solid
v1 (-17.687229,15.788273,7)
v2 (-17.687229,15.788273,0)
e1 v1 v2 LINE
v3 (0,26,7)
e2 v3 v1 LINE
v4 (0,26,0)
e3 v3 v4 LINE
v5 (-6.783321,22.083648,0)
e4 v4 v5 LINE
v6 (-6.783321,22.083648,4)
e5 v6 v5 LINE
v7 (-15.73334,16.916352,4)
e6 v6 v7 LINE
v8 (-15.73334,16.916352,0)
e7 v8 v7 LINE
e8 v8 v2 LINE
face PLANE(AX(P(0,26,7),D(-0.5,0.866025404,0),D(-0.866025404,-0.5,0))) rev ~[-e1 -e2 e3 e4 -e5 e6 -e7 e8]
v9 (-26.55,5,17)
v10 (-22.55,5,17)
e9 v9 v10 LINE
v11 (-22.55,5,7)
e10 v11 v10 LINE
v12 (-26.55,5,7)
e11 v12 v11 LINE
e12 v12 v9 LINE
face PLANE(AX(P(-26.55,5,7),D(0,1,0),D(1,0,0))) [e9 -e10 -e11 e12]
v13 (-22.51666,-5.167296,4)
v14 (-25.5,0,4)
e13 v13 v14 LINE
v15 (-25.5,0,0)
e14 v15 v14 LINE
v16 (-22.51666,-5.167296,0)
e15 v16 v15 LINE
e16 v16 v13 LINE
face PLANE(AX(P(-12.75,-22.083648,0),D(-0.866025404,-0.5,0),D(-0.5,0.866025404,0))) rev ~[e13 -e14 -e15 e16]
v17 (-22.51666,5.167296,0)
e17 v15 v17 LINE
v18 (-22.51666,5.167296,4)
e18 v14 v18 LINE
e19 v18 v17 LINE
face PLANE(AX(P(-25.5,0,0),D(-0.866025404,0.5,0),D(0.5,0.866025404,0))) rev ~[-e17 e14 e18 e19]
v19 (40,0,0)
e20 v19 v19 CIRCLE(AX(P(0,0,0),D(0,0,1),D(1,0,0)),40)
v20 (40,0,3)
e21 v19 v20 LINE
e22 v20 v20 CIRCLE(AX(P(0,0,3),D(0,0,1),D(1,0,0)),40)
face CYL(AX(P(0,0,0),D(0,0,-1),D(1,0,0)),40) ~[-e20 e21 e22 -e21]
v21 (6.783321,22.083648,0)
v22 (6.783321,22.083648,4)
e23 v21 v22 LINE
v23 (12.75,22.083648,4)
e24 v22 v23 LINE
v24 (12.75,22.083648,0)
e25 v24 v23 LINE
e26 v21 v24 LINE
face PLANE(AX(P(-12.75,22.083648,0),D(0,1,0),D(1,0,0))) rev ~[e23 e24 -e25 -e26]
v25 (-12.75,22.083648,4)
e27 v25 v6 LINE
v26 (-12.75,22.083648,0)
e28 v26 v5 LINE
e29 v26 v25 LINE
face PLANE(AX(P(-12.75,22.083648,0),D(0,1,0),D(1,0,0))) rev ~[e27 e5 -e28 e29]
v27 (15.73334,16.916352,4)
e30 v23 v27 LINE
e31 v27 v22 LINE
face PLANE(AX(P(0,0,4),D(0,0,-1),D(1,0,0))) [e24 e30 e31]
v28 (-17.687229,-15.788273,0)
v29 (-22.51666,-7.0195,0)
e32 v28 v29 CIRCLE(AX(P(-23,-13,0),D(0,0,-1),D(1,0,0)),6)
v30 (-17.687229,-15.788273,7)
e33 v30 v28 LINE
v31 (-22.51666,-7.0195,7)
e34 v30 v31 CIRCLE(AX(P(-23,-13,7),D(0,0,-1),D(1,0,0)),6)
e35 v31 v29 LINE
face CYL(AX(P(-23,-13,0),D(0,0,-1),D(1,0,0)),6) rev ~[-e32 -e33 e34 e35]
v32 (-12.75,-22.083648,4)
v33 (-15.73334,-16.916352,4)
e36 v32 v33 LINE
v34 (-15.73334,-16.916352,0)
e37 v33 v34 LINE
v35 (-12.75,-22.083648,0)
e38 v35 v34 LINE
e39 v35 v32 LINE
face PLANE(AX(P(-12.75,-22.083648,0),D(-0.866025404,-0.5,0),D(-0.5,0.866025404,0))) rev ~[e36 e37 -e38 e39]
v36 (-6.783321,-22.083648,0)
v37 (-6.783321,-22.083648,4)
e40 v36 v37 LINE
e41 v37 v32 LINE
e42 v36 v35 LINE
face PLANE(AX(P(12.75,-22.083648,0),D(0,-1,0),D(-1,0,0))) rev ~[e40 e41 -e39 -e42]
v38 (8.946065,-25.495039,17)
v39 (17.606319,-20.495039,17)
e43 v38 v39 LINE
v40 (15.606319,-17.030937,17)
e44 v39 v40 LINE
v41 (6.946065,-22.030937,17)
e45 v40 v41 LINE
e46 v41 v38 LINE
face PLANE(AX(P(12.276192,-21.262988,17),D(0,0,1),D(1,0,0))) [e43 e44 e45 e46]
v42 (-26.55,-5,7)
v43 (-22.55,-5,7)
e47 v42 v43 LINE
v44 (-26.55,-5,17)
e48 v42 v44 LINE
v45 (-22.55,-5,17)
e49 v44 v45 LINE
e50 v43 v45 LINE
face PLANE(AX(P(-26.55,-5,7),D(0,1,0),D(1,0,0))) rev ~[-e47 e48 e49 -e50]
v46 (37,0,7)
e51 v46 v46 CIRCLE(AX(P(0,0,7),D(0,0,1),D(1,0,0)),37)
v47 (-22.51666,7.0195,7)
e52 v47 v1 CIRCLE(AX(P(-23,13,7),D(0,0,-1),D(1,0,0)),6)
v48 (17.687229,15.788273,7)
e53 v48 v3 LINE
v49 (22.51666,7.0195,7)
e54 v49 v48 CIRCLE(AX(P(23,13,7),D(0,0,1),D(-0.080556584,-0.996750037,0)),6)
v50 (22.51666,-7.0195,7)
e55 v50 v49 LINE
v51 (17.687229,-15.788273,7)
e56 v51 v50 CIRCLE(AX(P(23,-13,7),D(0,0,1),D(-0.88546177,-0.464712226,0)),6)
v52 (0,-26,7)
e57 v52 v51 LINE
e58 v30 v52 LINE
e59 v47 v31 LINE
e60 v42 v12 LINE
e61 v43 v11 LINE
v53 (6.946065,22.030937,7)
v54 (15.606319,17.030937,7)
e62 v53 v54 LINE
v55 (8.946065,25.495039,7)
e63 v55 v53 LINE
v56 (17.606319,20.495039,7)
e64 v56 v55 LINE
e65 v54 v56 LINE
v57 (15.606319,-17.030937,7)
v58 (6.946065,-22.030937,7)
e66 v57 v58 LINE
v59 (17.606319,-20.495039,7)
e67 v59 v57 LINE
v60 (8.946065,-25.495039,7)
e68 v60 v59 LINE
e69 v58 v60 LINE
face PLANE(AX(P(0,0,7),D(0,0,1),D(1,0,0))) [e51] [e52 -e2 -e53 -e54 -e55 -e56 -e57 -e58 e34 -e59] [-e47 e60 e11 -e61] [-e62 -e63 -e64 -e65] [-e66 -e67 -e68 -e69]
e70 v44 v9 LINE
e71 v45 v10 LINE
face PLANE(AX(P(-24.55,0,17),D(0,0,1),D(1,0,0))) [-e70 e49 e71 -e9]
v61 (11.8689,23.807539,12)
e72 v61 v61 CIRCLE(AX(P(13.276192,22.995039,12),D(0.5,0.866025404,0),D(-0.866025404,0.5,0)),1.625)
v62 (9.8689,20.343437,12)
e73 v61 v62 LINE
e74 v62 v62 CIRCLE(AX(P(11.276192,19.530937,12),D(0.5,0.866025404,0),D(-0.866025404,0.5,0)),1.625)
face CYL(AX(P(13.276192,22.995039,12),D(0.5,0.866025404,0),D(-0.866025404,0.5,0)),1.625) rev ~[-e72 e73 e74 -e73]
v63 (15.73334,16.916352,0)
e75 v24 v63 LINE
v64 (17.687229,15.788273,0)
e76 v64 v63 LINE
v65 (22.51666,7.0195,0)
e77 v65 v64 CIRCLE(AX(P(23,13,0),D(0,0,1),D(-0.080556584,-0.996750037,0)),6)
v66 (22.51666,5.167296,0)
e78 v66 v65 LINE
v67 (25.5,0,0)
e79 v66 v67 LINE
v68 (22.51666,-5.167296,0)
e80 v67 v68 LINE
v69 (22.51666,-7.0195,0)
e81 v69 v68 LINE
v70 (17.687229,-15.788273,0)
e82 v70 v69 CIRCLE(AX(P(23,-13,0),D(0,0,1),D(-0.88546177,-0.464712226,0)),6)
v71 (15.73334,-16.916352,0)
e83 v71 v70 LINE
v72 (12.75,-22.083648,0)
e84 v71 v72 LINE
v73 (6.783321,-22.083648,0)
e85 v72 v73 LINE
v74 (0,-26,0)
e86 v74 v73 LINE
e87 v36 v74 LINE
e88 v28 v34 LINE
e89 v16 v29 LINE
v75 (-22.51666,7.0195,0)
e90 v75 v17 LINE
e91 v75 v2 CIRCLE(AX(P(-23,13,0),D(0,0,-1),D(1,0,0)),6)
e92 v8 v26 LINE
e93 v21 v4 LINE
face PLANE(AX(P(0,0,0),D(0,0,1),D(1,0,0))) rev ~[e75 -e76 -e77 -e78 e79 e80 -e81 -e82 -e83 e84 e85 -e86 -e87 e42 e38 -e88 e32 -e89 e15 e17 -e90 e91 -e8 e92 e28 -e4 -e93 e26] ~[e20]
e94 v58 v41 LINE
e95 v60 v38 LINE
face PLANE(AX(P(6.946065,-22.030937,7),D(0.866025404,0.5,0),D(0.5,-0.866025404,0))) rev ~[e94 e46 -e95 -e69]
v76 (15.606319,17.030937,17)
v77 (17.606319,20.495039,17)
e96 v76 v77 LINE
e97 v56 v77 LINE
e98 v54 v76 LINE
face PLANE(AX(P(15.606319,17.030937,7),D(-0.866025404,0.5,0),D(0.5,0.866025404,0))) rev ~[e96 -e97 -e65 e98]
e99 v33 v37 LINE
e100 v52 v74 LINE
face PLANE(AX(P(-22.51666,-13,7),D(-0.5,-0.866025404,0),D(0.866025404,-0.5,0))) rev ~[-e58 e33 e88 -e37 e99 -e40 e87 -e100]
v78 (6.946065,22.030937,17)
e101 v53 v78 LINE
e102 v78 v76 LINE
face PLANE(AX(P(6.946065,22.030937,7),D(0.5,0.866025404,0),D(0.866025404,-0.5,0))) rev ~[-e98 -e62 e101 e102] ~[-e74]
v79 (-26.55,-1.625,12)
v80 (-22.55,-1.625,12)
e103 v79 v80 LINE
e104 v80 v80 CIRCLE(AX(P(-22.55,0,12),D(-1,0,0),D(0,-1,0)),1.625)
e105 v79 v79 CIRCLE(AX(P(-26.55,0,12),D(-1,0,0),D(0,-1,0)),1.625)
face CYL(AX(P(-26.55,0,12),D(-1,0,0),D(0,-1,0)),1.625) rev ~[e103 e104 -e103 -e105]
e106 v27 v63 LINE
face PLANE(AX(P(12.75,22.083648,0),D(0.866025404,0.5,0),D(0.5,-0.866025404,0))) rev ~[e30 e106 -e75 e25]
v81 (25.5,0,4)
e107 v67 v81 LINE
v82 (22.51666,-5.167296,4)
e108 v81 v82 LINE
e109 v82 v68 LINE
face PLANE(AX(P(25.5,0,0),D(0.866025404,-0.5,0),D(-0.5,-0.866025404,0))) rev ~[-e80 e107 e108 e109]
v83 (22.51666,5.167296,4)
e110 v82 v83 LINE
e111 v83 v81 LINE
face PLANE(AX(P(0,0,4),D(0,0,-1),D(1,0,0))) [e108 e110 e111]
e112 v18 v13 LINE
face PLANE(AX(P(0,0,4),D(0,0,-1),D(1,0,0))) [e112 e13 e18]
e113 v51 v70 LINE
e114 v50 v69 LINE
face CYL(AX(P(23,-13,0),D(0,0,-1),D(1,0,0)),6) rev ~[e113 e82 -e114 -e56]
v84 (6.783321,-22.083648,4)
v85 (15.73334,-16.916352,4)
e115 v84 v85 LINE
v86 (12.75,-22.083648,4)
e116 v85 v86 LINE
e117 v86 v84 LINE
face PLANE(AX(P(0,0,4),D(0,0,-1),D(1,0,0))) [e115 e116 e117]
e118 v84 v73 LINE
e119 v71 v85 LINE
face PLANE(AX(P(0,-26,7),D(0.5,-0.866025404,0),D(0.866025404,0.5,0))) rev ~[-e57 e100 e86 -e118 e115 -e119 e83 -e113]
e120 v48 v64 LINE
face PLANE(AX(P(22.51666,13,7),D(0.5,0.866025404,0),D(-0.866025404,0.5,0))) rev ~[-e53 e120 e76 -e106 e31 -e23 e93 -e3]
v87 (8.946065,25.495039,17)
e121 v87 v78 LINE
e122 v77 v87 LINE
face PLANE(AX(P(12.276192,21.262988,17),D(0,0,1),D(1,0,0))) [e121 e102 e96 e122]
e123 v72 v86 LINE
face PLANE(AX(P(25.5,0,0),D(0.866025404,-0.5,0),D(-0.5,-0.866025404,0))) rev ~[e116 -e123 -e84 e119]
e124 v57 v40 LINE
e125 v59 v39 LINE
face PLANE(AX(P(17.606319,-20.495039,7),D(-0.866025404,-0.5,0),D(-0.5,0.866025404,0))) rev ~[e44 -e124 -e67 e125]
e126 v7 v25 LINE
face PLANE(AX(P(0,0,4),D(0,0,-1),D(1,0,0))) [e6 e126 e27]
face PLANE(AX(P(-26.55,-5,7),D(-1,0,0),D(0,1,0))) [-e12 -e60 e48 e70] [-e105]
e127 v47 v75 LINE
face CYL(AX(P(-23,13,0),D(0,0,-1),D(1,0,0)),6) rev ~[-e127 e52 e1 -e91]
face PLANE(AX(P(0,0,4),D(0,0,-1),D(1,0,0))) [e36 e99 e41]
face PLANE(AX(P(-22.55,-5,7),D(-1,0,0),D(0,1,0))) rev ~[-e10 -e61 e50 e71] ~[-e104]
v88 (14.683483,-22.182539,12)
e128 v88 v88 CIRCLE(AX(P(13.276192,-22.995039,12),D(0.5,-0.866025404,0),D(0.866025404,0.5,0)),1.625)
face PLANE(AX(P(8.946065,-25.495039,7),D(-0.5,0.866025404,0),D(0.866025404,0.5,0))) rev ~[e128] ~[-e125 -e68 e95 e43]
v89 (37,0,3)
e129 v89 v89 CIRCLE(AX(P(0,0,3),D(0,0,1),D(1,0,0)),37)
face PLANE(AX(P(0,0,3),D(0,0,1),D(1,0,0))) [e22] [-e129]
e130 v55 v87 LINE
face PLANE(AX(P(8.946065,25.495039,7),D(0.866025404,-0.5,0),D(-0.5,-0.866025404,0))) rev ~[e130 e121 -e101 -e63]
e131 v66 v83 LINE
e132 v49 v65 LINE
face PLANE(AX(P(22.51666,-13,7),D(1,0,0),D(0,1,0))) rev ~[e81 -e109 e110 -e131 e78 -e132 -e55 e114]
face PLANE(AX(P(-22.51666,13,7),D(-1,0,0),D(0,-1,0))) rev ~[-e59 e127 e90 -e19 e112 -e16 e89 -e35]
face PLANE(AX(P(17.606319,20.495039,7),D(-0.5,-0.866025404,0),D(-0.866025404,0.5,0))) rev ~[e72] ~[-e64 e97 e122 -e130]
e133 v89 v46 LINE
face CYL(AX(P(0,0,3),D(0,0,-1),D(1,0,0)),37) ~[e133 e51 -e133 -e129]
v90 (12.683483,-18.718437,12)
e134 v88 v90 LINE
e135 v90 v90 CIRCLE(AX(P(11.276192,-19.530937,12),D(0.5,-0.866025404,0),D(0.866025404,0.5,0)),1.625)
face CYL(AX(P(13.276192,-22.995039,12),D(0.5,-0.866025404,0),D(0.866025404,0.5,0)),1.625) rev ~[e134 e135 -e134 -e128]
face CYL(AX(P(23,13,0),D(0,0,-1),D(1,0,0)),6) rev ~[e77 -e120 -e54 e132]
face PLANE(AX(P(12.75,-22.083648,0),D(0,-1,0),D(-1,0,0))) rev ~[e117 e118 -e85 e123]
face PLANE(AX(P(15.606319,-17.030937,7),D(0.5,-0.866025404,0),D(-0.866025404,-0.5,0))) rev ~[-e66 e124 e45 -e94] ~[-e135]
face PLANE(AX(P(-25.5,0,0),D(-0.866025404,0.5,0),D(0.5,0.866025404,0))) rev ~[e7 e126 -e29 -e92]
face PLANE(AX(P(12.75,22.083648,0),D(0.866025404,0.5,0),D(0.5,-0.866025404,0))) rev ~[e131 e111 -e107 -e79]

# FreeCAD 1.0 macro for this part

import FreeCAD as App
import Part
import Sketcher
Q = App.Units.Quantity

doc = App.newDocument("Part")
body = doc.addObject("PartDesign::Body", "Body")

# Sketch on XY plane
sketch1 = body.newObject("Sketcher::SketchObject", "Sketch")
sketch1.AttachmentSupport = (doc.getObject("XY_Plane"), [""])
sketch1.MapMode = "FlatFace"
sketch1.addGeometry(Part.Circle(App.Vector(0, 0, 0), App.Vector(0, 0, 1), 40), False)
sketch1.addConstraint(Sketcher.Constraint("Coincident", 0, 3, -1, 1))
sketch1.addConstraint(Sketcher.Constraint("Diameter", 0, Q("80 mm")))
pad1 = body.newObject("PartDesign::Pad", "Pad")
pad1.Profile = sketch1
pad1.Length = 3

# Sketch on XY plane
sketch2 = body.newObject("Sketcher::SketchObject", "Sketch001")
sketch2.AttachmentSupport = (doc.getObject("XY_Plane"), [""])
sketch2.MapMode = "FlatFace"
sketch2.AttachmentOffset = App.Placement(App.Vector(0, 0, 3), App.Rotation())
sketch2.addGeometry(Part.Circle(App.Vector(0, 0, 0), App.Vector(0, 0, 1), 37), False)
sketch2.addConstraint(Sketcher.Constraint("Coincident", 0, 3, -1, 1))
sketch2.addConstraint(Sketcher.Constraint("Diameter", 0, Q("74 mm")))
pad2 = body.newObject("PartDesign::Pad", "Pad001")
pad2.Profile = sketch2
pad2.Length = 4

# Sketch on XY plane
sketch3 = body.newObject("Sketcher::SketchObject", "Sketch002")
sketch3.AttachmentSupport = (doc.getObject("XY_Plane"), [""])
sketch3.MapMode = "FlatFace"
sketch3.AttachmentOffset = App.Placement(App.Vector(0, 0, 7), App.Rotation())
sketch3.addGeometry(Part.LineSegment(App.Vector(22.51666, 13, 0), App.Vector(0, 26, 0)), False)
sketch3.addGeometry(Part.LineSegment(App.Vector(0, 26, 0), App.Vector(-22.51666, 13, 0)), False)
sketch3.addGeometry(Part.LineSegment(App.Vector(-22.51666, 13, 0), App.Vector(-22.51666, -13, 0)), False)
sketch3.addGeometry(Part.LineSegment(App.Vector(-22.51666, -13, 0), App.Vector(0, -26, 0)), False)
sketch3.addGeometry(Part.LineSegment(App.Vector(0, -26, 0), App.Vector(22.51666, -13, 0)), False)
sketch3.addGeometry(Part.LineSegment(App.Vector(22.51666, -13, 0), App.Vector(22.51666, 13, 0)), False)
sketch3.addConstraint(Sketcher.Constraint("Coincident", 0, 2, 1, 1))
sketch3.addConstraint(Sketcher.Constraint("Coincident", 1, 2, 2, 1))
sketch3.addConstraint(Sketcher.Constraint("Coincident", 2, 2, 3, 1))
sketch3.addConstraint(Sketcher.Constraint("Coincident", 3, 2, 4, 1))
sketch3.addConstraint(Sketcher.Constraint("Coincident", 4, 2, 5, 1))
sketch3.addConstraint(Sketcher.Constraint("Coincident", 5, 2, 0, 1))
sketch3.addConstraint(Sketcher.Constraint("Vertical", 2))
sketch3.addConstraint(Sketcher.Constraint("Vertical", 5))
sketch3.addConstraint(Sketcher.Constraint("Symmetric", 0, 2, 3, 2, -1, 1))
sketch3.addConstraint(Sketcher.Constraint("Symmetric", 1, 2, 4, 2, -1, 1))
sketch3.addConstraint(Sketcher.Constraint("PointOnObject", 0, 2, -2))
sketch3.addConstraint(Sketcher.Constraint("Parallel", 0, 3))
sketch3.addConstraint(Sketcher.Constraint("Horizontal", 2, 2, 4, 2))
sketch3.addConstraint(Sketcher.Constraint("DistanceY", 2, 2, 2, 1, Q("26 mm")))
sketch3.addConstraint(Sketcher.Constraint("Angle", 0, Q("150 deg")))
sketch3.addConstraint(Sketcher.Constraint("Distance", 0, Q("26 mm")))
pocket1 = body.newObject("PartDesign::Pocket", "Pocket")
pocket1.Profile = sketch3
pocket1.Type = "ThroughAll"

# Sketch on XY plane
sketch4 = body.newObject("Sketcher::SketchObject", "Sketch003")
sketch4.AttachmentSupport = (doc.getObject("XY_Plane"), [""])
sketch4.MapMode = "FlatFace"
sketch4.addGeometry(Part.LineSegment(App.Vector(-12.75, -22.083648, 0), App.Vector(-25.5, 0, 0)), False)
sketch4.addGeometry(Part.LineSegment(App.Vector(-25.5, 0, 0), App.Vector(-12.75, 22.083648, 0)), False)
sketch4.addGeometry(Part.LineSegment(App.Vector(-12.75, 22.083648, 0), App.Vector(12.75, 22.083648, 0)), False)
sketch4.addGeometry(Part.LineSegment(App.Vector(12.75, 22.083648, 0), App.Vector(25.5, 0, 0)), False)
sketch4.addGeometry(Part.LineSegment(App.Vector(25.5, 0, 0), App.Vector(12.75, -22.083648, 0)), False)
sketch4.addGeometry(Part.LineSegment(App.Vector(12.75, -22.083648, 0), App.Vector(-12.75, -22.083648, 0)), False)
sketch4.addConstraint(Sketcher.Constraint("Coincident", 0, 2, 1, 1))
sketch4.addConstraint(Sketcher.Constraint("Coincident", 1, 2, 2, 1))
sketch4.addConstraint(Sketcher.Constraint("Coincident", 2, 2, 3, 1))
sketch4.addConstraint(Sketcher.Constraint("Coincident", 3, 2, 4, 1))
sketch4.addConstraint(Sketcher.Constraint("Coincident", 4, 2, 5, 1))
sketch4.addConstraint(Sketcher.Constraint("Coincident", 5, 2, 0, 1))
sketch4.addConstraint(Sketcher.Constraint("Horizontal", 2))
sketch4.addConstraint(Sketcher.Constraint("Horizontal", 5))
sketch4.addConstraint(Sketcher.Constraint("Symmetric", 0, 2, 3, 2, -1, 1))
sketch4.addConstraint(Sketcher.Constraint("Symmetric", 1, 2, 4, 2, -1, 1))
sketch4.addConstraint(Sketcher.Constraint("PointOnObject", 0, 2, -1))
sketch4.addConstraint(Sketcher.Constraint("Parallel", 0, 3))
sketch4.addConstraint(Sketcher.Constraint("Vertical", 2, 2, 4, 2))
sketch4.addConstraint(Sketcher.Constraint("Angle", 0, Q("120 deg")))
sketch4.addConstraint(Sketcher.Constraint("DistanceX", 2, 1, 2, 2, Q("25.5 mm")))
sketch4.addConstraint(Sketcher.Constraint("DistanceX", 0, 2, 3, 2, Q("51 mm")))
pocket2 = body.newObject("PartDesign::Pocket", "Pocket001")
pocket2.Profile = sketch4
pocket2.Length = 4
pocket2.Reversed = True

# Sketch on XY plane
sketch5 = body.newObject("Sketcher::SketchObject", "Sketch004")
sketch5.AttachmentSupport = (doc.getObject("XY_Plane"), [""])
sketch5.MapMode = "FlatFace"
sketch5.addGeometry(Part.Circle(App.Vector(23, -13, 0), App.Vector(0, 0, 1), 6), False)
sketch5.addGeometry(Part.Circle(App.Vector(23, 13, 0), App.Vector(0, 0, 1), 6), False)
sketch5.addGeometry(Part.Circle(App.Vector(-23, 13, 0), App.Vector(0, 0, 1), 6), False)
sketch5.addGeometry(Part.Circle(App.Vector(-23, -13, 0), App.Vector(0, 0, 1), 6), False)
sketch5.addConstraint(Sketcher.Constraint("Equal", 0, 1))
sketch5.addConstraint(Sketcher.Constraint("Equal", 1, 2))
sketch5.addConstraint(Sketcher.Constraint("Equal", 2, 3))
sketch5.addConstraint(Sketcher.Constraint("Symmetric", 0, 3, 2, 3, -1, 1))
sketch5.addConstraint(Sketcher.Constraint("Symmetric", 1, 3, 3, 3, -1, 1))
sketch5.addConstraint(Sketcher.Constraint("Symmetric", 1, 3, 2, 3, -2))
sketch5.addConstraint(Sketcher.Constraint("Diameter", 0, Q("12 mm")))
sketch5.addConstraint(Sketcher.Constraint("DistanceX", -1, 1, 0, 3, Q("23 mm")))
sketch5.addConstraint(Sketcher.Constraint("DistanceY", 0, 3, -1, 1, Q("13 mm")))
pocket3 = body.newObject("PartDesign::Pocket", "Pocket002")
pocket3.Profile = sketch5
pocket3.Type = "ThroughAll"
pocket3.Reversed = True

# Sketch on XY plane
sketch6 = body.newObject("Sketcher::SketchObject", "Sketch005")
sketch6.AttachmentSupport = (doc.getObject("XY_Plane"), [""])
sketch6.MapMode = "FlatFace"
sketch6.AttachmentOffset = App.Placement(App.Vector(0, 0, 7), App.Rotation())
sketch6.addGeometry(Part.LineSegment(App.Vector(-26.55, 5, 0), App.Vector(-26.55, -5, 0)), False)
sketch6.addGeometry(Part.LineSegment(App.Vector(-26.55, -5, 0), App.Vector(-22.55, -5, 0)), False)
sketch6.addGeometry(Part.LineSegment(App.Vector(-22.55, -5, 0), App.Vector(-22.55, 5, 0)), False)
sketch6.addGeometry(Part.LineSegment(App.Vector(-22.55, 5, 0), App.Vector(-26.55, 5, 0)), False)
sketch6.addGeometry(Part.LineSegment(App.Vector(6.946065, 22.030937, 0), App.Vector(15.606319, 17.030937, 0)), False)
sketch6.addGeometry(Part.LineSegment(App.Vector(15.606319, 17.030937, 0), App.Vector(17.606319, 20.495039, 0)), False)
sketch6.addGeometry(Part.LineSegment(App.Vector(17.606319, 20.495039, 0), App.Vector(8.946065, 25.495039, 0)), False)
sketch6.addGeometry(Part.LineSegment(App.Vector(8.946065, 25.495039, 0), App.Vector(6.946065, 22.030937, 0)), False)
sketch6.addGeometry(Part.LineSegment(App.Vector(15.606319, -17.030937, 0), App.Vector(6.946065, -22.030937, 0)), False)
sketch6.addGeometry(Part.LineSegment(App.Vector(6.946065, -22.030937, 0), App.Vector(8.946065, -25.495039, 0)), False)
sketch6.addGeometry(Part.LineSegment(App.Vector(8.946065, -25.495039, 0), App.Vector(17.606319, -20.495039, 0)), False)
sketch6.addGeometry(Part.LineSegment(App.Vector(17.606319, -20.495039, 0), App.Vector(15.606319, -17.030937, 0)), False)
sketch6.addConstraint(Sketcher.Constraint("Coincident", 0, 2, 1, 1))
sketch6.addConstraint(Sketcher.Constraint("Coincident", 1, 2, 2, 1))
sketch6.addConstraint(Sketcher.Constraint("Coincident", 2, 2, 3, 1))
sketch6.addConstraint(Sketcher.Constraint("Coincident", 3, 2, 0, 1))
sketch6.addConstraint(Sketcher.Constraint("Coincident", 4, 2, 5, 1))
sketch6.addConstraint(Sketcher.Constraint("Coincident", 5, 2, 6, 1))
sketch6.addConstraint(Sketcher.Constraint("Coincident", 6, 2, 7, 1))
sketch6.addConstraint(Sketcher.Constraint("Coincident", 7, 2, 4, 1))
sketch6.addConstraint(Sketcher.Constraint("Coincident", 8, 2, 9, 1))
sketch6.addConstraint(Sketcher.Constraint("Coincident", 9, 2, 10, 1))
sketch6.addConstraint(Sketcher.Constraint("Coincident", 10, 2, 11, 1))
sketch6.addConstraint(Sketcher.Constraint("Coincident", 11, 2, 8, 1))
sketch6.addConstraint(Sketcher.Constraint("Vertical", 0))
sketch6.addConstraint(Sketcher.Constraint("Horizontal", 1))
sketch6.addConstraint(Sketcher.Constraint("Vertical", 2))
sketch6.addConstraint(Sketcher.Constraint("Horizontal", 3))
sketch6.addConstraint(Sketcher.Constraint("Symmetric", 7, 2, 8, 2, -1))
sketch6.addConstraint(Sketcher.Constraint("Symmetric", 6, 2, 9, 2, -1))
sketch6.addConstraint(Sketcher.Constraint("Symmetric", 5, 2, 10, 2, -1))
sketch6.addConstraint(Sketcher.Constraint("Symmetric", 4, 2, 11, 2, -1))
sketch6.addConstraint(Sketcher.Constraint("Perpendicular", 4, 5))
sketch6.addConstraint(Sketcher.Constraint("Perpendicular", 5, 6))
sketch6.addConstraint(Sketcher.Constraint("Perpendicular", 6, 7))
sketch6.addConstraint(Sketcher.Constraint("DistanceX", 1, 1, 1, 2, Q("4 mm")))
sketch6.addConstraint(Sketcher.Constraint("DistanceY", 0, 2, 0, 1, Q("10 mm")))
sketch6.addConstraint(Sketcher.Constraint("Angle", 4, Q("-30 deg")))
sketch6.addConstraint(Sketcher.Constraint("Distance", 4, Q("10 mm")))
sketch6.addConstraint(Sketcher.Constraint("Distance", 5, Q("4 mm")))
sketch6.addConstraint(Sketcher.Constraint("DistanceY", 0, 2, -1, 1, Q("5 mm")))
sketch6.addConstraint(Sketcher.Constraint("DistanceX", 0, 2, -1, 1, Q("26.55 mm")))
sketch6.addConstraint(Sketcher.Constraint("DistanceX", -1, 1, 4, 2, Q("15.606319 mm")))
sketch6.addConstraint(Sketcher.Constraint("DistanceY", -1, 1, 5, 2, Q("20.495039 mm")))
pad3 = body.newObject("PartDesign::Pad", "Pad002")
pad3.Profile = sketch6
pad3.Length = 10

# Sketch on an angled plane
sketch7 = body.newObject("Sketcher::SketchObject", "Sketch006")
sketch7.Placement = App.Placement(App.Vector(13.276192, 22.995039, 0), App.Rotation(App.Vector(-0.866025404, 0.5, 0), App.Vector(0, 0, 1), App.Vector(0.5, 0.866025404, 0), "ZXY"))
sketch7.addGeometry(Part.Circle(App.Vector(0, 12, 0), App.Vector(0, 0, 1), 1.625), False)
sketch7.addConstraint(Sketcher.Constraint("PointOnObject", 0, 3, -2))
sketch7.addConstraint(Sketcher.Constraint("Diameter", 0, Q("3.25 mm")))
sketch7.addConstraint(Sketcher.Constraint("DistanceY", -1, 1, 0, 3, Q("12 mm")))
pocket4 = body.newObject("PartDesign::Pocket", "Pocket003")
pocket4.Profile = sketch7
pocket4.Length = 5

# Sketch on YZ plane
sketch8 = body.newObject("Sketcher::SketchObject", "Sketch007")
sketch8.AttachmentSupport = (doc.getObject("YZ_Plane"), [""])
sketch8.MapMode = "FlatFace"
sketch8.AttachmentOffset = App.Placement(App.Vector(0, 0, -26.55), App.Rotation())
sketch8.addGeometry(Part.Circle(App.Vector(0, 12, 0), App.Vector(0, 0, 1), 1.625), False)
sketch8.addConstraint(Sketcher.Constraint("PointOnObject", 0, 3, -2))
sketch8.addConstraint(Sketcher.Constraint("Diameter", 0, Q("3.25 mm")))
sketch8.addConstraint(Sketcher.Constraint("DistanceY", -1, 1, 0, 3, Q("12 mm")))
pocket5 = body.newObject("PartDesign::Pocket", "Pocket004")
pocket5.Profile = sketch8
pocket5.Length = 5
pocket5.Reversed = True

# Sketch on an angled plane
sketch9 = body.newObject("Sketcher::SketchObject", "Sketch008")
sketch9.Placement = App.Placement(App.Vector(13.276192, -22.995039, 0), App.Rotation(App.Vector(0.866025404, 0.5, 0), App.Vector(0, 0, 1), App.Vector(0.5, -0.866025404, 0), "ZXY"))
sketch9.addGeometry(Part.Circle(App.Vector(0, 12, 0), App.Vector(0, 0, 1), 1.625), False)
sketch9.addConstraint(Sketcher.Constraint("PointOnObject", 0, 3, -2))
sketch9.addConstraint(Sketcher.Constraint("Diameter", 0, Q("3.25 mm")))
sketch9.addConstraint(Sketcher.Constraint("DistanceY", -1, 1, 0, 3, Q("12 mm")))
pocket6 = body.newObject("PartDesign::Pocket", "Pocket005")
pocket6.Profile = sketch9
pocket6.Length = 5

doc.recompute()
